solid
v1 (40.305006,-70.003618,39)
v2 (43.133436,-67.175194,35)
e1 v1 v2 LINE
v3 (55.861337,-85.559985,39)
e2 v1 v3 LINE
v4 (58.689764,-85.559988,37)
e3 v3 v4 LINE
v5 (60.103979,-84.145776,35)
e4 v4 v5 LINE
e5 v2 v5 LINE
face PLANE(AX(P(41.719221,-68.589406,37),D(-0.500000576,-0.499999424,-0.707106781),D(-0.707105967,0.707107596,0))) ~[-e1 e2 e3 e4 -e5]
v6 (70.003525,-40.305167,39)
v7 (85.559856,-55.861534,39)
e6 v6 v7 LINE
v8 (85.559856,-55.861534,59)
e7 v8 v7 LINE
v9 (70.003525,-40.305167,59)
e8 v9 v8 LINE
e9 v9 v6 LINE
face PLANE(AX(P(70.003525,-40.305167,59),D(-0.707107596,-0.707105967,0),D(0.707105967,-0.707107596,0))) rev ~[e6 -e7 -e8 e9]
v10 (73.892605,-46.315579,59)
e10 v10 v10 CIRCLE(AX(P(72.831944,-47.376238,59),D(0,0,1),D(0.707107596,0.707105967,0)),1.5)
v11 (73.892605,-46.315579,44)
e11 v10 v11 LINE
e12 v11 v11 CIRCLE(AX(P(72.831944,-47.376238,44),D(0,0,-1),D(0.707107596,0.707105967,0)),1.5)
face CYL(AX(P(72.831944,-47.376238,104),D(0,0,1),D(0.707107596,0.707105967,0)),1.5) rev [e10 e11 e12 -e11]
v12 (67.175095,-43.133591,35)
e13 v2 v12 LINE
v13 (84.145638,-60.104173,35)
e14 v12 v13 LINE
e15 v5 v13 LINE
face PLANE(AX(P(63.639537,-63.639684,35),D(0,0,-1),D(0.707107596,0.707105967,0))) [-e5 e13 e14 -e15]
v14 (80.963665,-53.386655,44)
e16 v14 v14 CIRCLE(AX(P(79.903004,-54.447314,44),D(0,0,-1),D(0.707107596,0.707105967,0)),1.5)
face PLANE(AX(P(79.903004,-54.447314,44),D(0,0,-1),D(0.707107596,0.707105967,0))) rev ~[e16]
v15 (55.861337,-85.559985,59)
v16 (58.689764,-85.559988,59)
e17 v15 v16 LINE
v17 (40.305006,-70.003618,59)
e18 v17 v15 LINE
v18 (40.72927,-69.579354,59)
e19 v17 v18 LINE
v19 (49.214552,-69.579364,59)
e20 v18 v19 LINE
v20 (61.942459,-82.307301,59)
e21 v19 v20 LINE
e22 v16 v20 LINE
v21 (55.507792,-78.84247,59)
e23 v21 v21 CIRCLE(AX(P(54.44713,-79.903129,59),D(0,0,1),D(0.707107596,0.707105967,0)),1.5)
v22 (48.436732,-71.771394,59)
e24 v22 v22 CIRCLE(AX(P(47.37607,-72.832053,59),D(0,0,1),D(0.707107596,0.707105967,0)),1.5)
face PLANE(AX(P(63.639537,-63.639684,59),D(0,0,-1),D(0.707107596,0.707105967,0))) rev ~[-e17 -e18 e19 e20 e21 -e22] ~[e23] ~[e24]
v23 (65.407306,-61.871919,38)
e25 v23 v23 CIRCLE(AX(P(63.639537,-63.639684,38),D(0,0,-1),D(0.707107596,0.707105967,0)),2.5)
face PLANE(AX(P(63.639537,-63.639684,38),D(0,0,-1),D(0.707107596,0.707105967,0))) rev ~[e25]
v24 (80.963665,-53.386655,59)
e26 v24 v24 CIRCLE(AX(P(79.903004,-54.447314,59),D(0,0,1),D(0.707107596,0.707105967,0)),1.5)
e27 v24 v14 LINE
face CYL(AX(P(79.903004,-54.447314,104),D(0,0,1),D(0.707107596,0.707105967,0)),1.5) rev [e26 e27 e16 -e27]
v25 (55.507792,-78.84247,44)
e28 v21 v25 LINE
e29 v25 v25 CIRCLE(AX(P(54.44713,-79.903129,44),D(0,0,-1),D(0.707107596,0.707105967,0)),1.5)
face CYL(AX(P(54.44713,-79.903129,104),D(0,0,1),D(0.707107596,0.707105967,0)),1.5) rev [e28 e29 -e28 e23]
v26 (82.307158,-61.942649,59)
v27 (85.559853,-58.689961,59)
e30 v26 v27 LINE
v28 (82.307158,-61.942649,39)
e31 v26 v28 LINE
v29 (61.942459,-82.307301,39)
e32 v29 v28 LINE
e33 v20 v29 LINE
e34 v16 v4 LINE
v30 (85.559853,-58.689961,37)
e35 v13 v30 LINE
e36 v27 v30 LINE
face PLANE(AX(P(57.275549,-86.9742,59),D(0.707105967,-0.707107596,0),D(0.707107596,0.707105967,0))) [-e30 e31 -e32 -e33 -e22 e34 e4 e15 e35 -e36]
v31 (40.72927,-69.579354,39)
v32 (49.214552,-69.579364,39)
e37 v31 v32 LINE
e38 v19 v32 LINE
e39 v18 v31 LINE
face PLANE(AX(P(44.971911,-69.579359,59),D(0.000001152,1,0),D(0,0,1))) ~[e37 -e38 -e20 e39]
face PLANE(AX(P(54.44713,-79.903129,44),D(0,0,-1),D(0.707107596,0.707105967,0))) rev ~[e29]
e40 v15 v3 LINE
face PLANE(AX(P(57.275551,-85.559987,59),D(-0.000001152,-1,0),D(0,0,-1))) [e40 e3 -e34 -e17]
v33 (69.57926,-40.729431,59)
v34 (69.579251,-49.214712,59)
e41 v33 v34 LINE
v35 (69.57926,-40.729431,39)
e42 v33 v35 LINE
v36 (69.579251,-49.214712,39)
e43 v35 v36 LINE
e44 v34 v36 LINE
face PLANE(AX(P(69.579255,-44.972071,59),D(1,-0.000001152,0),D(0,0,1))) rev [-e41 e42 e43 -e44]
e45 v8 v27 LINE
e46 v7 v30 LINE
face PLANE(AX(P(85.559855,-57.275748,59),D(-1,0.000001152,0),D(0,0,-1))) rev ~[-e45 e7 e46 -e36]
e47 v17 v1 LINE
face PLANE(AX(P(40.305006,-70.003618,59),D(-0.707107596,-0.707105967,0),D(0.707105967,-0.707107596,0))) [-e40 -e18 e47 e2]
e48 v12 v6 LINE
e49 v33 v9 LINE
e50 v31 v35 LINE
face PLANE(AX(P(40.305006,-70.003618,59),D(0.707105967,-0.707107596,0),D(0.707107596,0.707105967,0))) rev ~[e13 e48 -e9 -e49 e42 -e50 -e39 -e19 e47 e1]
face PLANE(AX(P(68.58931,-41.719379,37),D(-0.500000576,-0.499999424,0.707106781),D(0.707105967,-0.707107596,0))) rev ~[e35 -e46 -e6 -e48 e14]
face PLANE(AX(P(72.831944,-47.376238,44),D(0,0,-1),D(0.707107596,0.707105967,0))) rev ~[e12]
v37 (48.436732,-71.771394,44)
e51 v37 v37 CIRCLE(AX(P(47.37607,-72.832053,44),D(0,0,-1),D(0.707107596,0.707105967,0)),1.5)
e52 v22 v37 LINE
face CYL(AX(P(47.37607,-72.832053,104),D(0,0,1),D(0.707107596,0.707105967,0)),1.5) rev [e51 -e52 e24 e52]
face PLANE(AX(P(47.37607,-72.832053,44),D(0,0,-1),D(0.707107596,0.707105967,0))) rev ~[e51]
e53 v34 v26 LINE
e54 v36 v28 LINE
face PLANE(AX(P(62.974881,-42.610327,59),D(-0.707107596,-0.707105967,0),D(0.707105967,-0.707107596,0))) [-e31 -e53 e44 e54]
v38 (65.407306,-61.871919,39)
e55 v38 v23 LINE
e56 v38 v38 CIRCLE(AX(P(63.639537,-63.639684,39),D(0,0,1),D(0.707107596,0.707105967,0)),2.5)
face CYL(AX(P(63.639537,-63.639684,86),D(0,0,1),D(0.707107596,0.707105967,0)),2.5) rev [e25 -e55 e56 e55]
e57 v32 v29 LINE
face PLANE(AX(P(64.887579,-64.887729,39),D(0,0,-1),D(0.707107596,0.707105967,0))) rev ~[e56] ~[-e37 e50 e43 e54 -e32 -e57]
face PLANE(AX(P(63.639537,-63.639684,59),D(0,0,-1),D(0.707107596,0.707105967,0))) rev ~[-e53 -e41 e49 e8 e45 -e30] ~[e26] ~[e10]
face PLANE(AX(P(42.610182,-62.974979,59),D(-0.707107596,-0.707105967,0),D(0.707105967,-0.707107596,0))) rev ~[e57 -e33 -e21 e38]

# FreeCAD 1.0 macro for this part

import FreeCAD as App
import Part
import Sketcher

V = App.Vector
Q = App.Units.Quantity


def edges_at(feature, points):
    """Names of the edges that pass closest to the given points."""
    edges = feature.Shape.Edges
    near = lambda p: min(range(len(edges)), key=lambda i: edges[i].distToShape(Part.Vertex(*p))[0])
    return sorted({f"Edge{near(p) + 1}" for p in points})

doc = App.newDocument("Part")
params = doc.addObject("Spreadsheet::Sheet", "Params")
for row, (alias, value) in enumerate([
    ("sketch1_diameter", "3 mm"),
    ("pad1_length", "60 mm"),
    ("sketch2_diameter", "3 mm"),
    ("pad2_length", "60 mm"),
    ("sketch3_diameter", "3 mm"),
    ("pad3_length", "60 mm"),
    ("sketch4_diameter", "3 mm"),
    ("pad4_length", "60 mm"),
    ("sketch5_diameter", "5 mm"),
    ("pad5_length", "48 mm"),
    ("sketch6_width", "28.8 mm"),
    ("sketch6_height", "34.21 mm"),
    ("pad6_length", "20 mm"),
    ("sketch7_width", "42 mm"),
    ("sketch7_height", "24 mm"),
    ("pad7_length", "24 mm"),
    ("chamfer_size", "6 mm"),
    ("chamfer2_size", "4 mm"),
    ("chamfer3_size", "2 mm"),
], start=1):
    params.set(f"A{row}", alias)
    params.set(f"B{row}", "=" + value)
    params.setAlias(f"B{row}", alias)

body = doc.addObject("PartDesign::Body", "Body")

# Sketch on XY plane
sketch1 = doc.addObject("Sketcher::SketchObject", "Sketch")
body.addObject(sketch1)
sketch1.AttachmentSupport = (doc.XY_Plane, [""])
sketch1.MapMode = "FlatFace"
sketch1.AttachmentOffset = App.Placement(V(0, 0, -57), App.Rotation())
sketch1.addGeometry(Part.Circle(V(18, 85, 0), V(0, 0, 1), 1.5), False)
sketch1.addConstraint([
    Sketcher.Constraint("Diameter", 0, Q("3 mm")),
    Sketcher.Constraint("DistanceX", -1, 1, 0, 3, Q("18 mm")),
    Sketcher.Constraint("DistanceY", -1, 1, 0, 3, Q("85 mm")),
])
sketch1.setExpression("Constraints[0]", "Params.sketch1_diameter")
pad1 = doc.addObject("PartDesign::Pad", "Pad")
body.addObject(pad1)
pad1.Profile = sketch1
pad1.setExpression("Length", "Params.pad1_length")
body2 = doc.addObject("PartDesign::Body", "Body001")

# Sketch on XY plane
sketch2 = doc.addObject("Sketcher::SketchObject", "Sketch001")
body2.addObject(sketch2)
sketch2.AttachmentSupport = (doc.getObject("XY_Plane001"), [""])
sketch2.MapMode = "FlatFace"
sketch2.AttachmentOffset = App.Placement(V(0, 0, -57), App.Rotation())
sketch2.addGeometry(Part.Circle(V(-18, 85, 0), V(0, 0, 1), 1.5), False)
sketch2.addConstraint([
    Sketcher.Constraint("Diameter", 0, Q("3 mm")),
    Sketcher.Constraint("DistanceX", 0, 3, -1, 1, Q("18 mm")),
    Sketcher.Constraint("DistanceY", -1, 1, 0, 3, Q("85 mm")),
])
sketch2.setExpression("Constraints[0]", "Params.sketch2_diameter")
pad2 = doc.addObject("PartDesign::Pad", "Pad001")
body2.addObject(pad2)
pad2.Profile = sketch2
pad2.setExpression("Length", "Params.pad2_length")
body3 = doc.addObject("PartDesign::Body", "Body002")

# Sketch on XY plane
sketch3 = doc.addObject("Sketcher::SketchObject", "Sketch002")
body3.addObject(sketch3)
sketch3.AttachmentSupport = (doc.getObject("XY_Plane002"), [""])
sketch3.MapMode = "FlatFace"
sketch3.AttachmentOffset = App.Placement(V(0, 0, -57), App.Rotation())
sketch3.addGeometry(Part.Circle(V(-18, 95, 0), V(0, 0, 1), 1.5), False)
sketch3.addConstraint([
    Sketcher.Constraint("Diameter", 0, Q("3 mm")),
    Sketcher.Constraint("DistanceX", 0, 3, -1, 1, Q("18 mm")),
    Sketcher.Constraint("DistanceY", -1, 1, 0, 3, Q("95 mm")),
])
sketch3.setExpression("Constraints[0]", "Params.sketch3_diameter")
pad3 = doc.addObject("PartDesign::Pad", "Pad002")
body3.addObject(pad3)
pad3.Profile = sketch3
pad3.setExpression("Length", "Params.pad3_length")
body4 = doc.addObject("PartDesign::Body", "Body003")
body4.AllowCompound = True

# Sketch on XY plane
sketch4 = doc.addObject("Sketcher::SketchObject", "Sketch003")
body4.addObject(sketch4)
sketch4.AttachmentSupport = (doc.getObject("XY_Plane003"), [""])
sketch4.MapMode = "FlatFace"
sketch4.AttachmentOffset = App.Placement(V(0, 0, -57), App.Rotation())
sketch4.addGeometry(Part.Circle(V(18, 95, 0), V(0, 0, 1), 1.5), False)
sketch4.addConstraint([
    Sketcher.Constraint("Diameter", 0, Q("3 mm")),
    Sketcher.Constraint("DistanceX", -1, 1, 0, 3, Q("18 mm")),
    Sketcher.Constraint("DistanceY", -1, 1, 0, 3, Q("95 mm")),
])
sketch4.setExpression("Constraints[0]", "Params.sketch4_diameter")
pad4 = doc.addObject("PartDesign::Pad", "Pad003")
body4.addObject(pad4)
pad4.Profile = sketch4
pad4.setExpression("Length", "Params.pad4_length")
doc.recompute()

boolean = doc.addObject("PartDesign::Boolean", "Boolean")
body4.addObject(boolean)
boolean.Type = "Fuse"
boolean.addObjects([body])
doc.recompute()

boolean2 = doc.addObject("PartDesign::Boolean", "Boolean001")
body4.addObject(boolean2)
boolean2.Type = "Fuse"
boolean2.addObjects([body2])
doc.recompute()

boolean3 = doc.addObject("PartDesign::Boolean", "Boolean002")
body4.addObject(boolean3)
boolean3.Type = "Fuse"
boolean3.addObjects([body3])
body5 = doc.addObject("PartDesign::Body", "Body004")
body5.AllowCompound = True
doc.recompute()

body4.Placement = App.Placement(V(0, 0, -16), App.Rotation(V(0, 0, 1), 0))
boolean4 = doc.addObject("PartDesign::Boolean", "Boolean003")
body5.addObject(boolean4)
boolean4.Type = "Fuse"
boolean4.addObjects([body4])
body6 = doc.addObject("PartDesign::Body", "Body005")

# Sketch on XY plane
sketch5 = doc.addObject("Sketcher::SketchObject", "Sketch004")
body6.addObject(sketch5)
sketch5.AttachmentSupport = (doc.getObject("XY_Plane005"), [""])
sketch5.MapMode = "FlatFace"
sketch5.AttachmentOffset = App.Placement(V(0, 0, -55), App.Rotation())
sketch5.addGeometry(Part.Circle(V(0, 90, 0), V(0, 0, 1), 2.5), False)
sketch5.addConstraint([
    Sketcher.Constraint("PointOnObject", 0, 3, -2),
    Sketcher.Constraint("Diameter", 0, Q("5 mm")),
    Sketcher.Constraint("DistanceY", -1, 1, 0, 3, Q("90 mm")),
])
sketch5.setExpression("Constraints[1]", "Params.sketch5_diameter")
pad5 = doc.addObject("PartDesign::Pad", "Pad004")
body6.addObject(pad5)
pad5.Profile = sketch5
pad5.setExpression("Length", "Params.pad5_length")
body7 = doc.addObject("PartDesign::Body", "Body006")

# Sketch on XY plane
sketch6 = doc.addObject("Sketcher::SketchObject", "Sketch005")
body7.addObject(sketch6)
sketch6.AttachmentSupport = (doc.getObject("XY_Plane006"), [""])
sketch6.MapMode = "FlatFace"
sketch6.AttachmentOffset = App.Placement(V(0, 0, 34), App.Rotation())
sketch6.addGeometry([
    Part.LineSegment(V(-14, 19, 0), V(-14, -15, 0)),
    Part.LineSegment(V(-14, -15, 0), V(14, -15, 0)),
    Part.LineSegment(V(14, -15, 0), V(14, 19, 0)),
    Part.LineSegment(V(14, 19, 0), V(-14, 19, 0)),
], False)
sketch6.addConstraint([
    Sketcher.Constraint("Coincident", 0, 2, 1, 1),
    Sketcher.Constraint("Coincident", 1, 2, 2, 1),
    Sketcher.Constraint("Coincident", 2, 2, 3, 1),
    Sketcher.Constraint("Coincident", 3, 2, 0, 1),
    Sketcher.Constraint("Vertical", 0),
    Sketcher.Constraint("Horizontal", 1),
    Sketcher.Constraint("Vertical", 2),
    Sketcher.Constraint("Horizontal", 3),
    Sketcher.Constraint("DistanceX", 1, 1, 1, 2, Q("28.8 mm")),
    Sketcher.Constraint("DistanceY", 0, 2, 0, 1, Q("34.21 mm")),
    Sketcher.Constraint("DistanceX", 0, 2, -1, 1, Q("14.4 mm")),
    Sketcher.Constraint("DistanceY", 0, 2, -1, 1, Q("15.34 mm")),
])
sketch6.setExpression("Constraints[8]", "Params.sketch6_width")
sketch6.setExpression("Constraints[9]", "Params.sketch6_height")
pad6 = doc.addObject("PartDesign::Pad", "Pad005")
body7.addObject(pad6)
pad6.Profile = sketch6
pad6.setExpression("Length", "Params.pad6_length")
body8 = doc.addObject("PartDesign::Body", "Body007")
doc.recompute()

body7.Placement = App.Placement(V(0, 90, -83), App.Rotation(V(0, 0, 1), 0))
boolean5 = doc.addObject("PartDesign::Boolean", "Boolean004")
body8.addObject(boolean5)
boolean5.Type = "Fuse"
boolean5.addObjects([body7])
body9 = doc.addObject("PartDesign::Body", "Body008")

# Sketch on XY plane
sketch7 = doc.addObject("Sketcher::SketchObject", "Sketch006")
body9.addObject(sketch7)
sketch7.AttachmentSupport = (doc.getObject("XY_Plane008"), [""])
sketch7.MapMode = "FlatFace"
sketch7.AttachmentOffset = App.Placement(V(0, 0, -49), App.Rotation())
sketch7.addGeometry([
    Part.LineSegment(V(-21, 102, 0), V(-21, 78, 0)),
    Part.LineSegment(V(-21, 78, 0), V(21, 78, 0)),
    Part.LineSegment(V(21, 78, 0), V(21, 102, 0)),
    Part.LineSegment(V(21, 102, 0), V(-21, 102, 0)),
], False)
sketch7.addConstraint([
    Sketcher.Constraint("Coincident", 0, 2, 1, 1),
    Sketcher.Constraint("Coincident", 1, 2, 2, 1),
    Sketcher.Constraint("Coincident", 2, 2, 3, 1),
    Sketcher.Constraint("Coincident", 3, 2, 0, 1),
    Sketcher.Constraint("Vertical", 0),
    Sketcher.Constraint("Horizontal", 1),
    Sketcher.Constraint("Vertical", 2),
    Sketcher.Constraint("Horizontal", 3),
    Sketcher.Constraint("DistanceX", 1, 1, 1, 2, Q("42 mm")),
    Sketcher.Constraint("DistanceY", 0, 2, 0, 1, Q("24 mm")),
    Sketcher.Constraint("DistanceX", 0, 2, -1, 1, Q("21 mm")),
    Sketcher.Constraint("DistanceY", -1, 1, 0, 2, Q("78 mm")),
])
sketch7.setExpression("Constraints[8]", "Params.sketch7_width")
sketch7.setExpression("Constraints[9]", "Params.sketch7_height")
pad7 = doc.addObject("PartDesign::Pad", "Pad006")
body9.addObject(pad7)
pad7.Profile = sketch7
pad7.setExpression("Length", "Params.pad7_length")
doc.recompute()

boolean6 = doc.addObject("PartDesign::Boolean", "Boolean005")
body9.addObject(boolean6)
boolean6.Type = "Cut"
boolean6.addObjects([body8])
body10 = doc.addObject("PartDesign::Body", "Body009")
doc.recompute()

body9.Placement = App.Placement(V(0, 0, 21), App.Rotation(V(0, 0, 1), 0))
boolean7 = doc.addObject("PartDesign::Boolean", "Boolean006")
body10.addObject(boolean7)
boolean7.Type = "Fuse"
boolean7.addObjects([body9])
doc.recompute()

boolean8 = doc.addObject("PartDesign::Boolean", "Boolean007")
body10.addObject(boolean8)
boolean8.Type = "Cut"
boolean8.addObjects([body6])
doc.recompute()

chamfer = doc.addObject("PartDesign::Chamfer", "Chamfer")
body10.addObject(chamfer)
chamfer.Base = (boolean8, edges_at(boolean8, [(-14.4, 78, -18), (14.4, 78, -18)]))
chamfer.setExpression("Size", "Params.chamfer_size")
doc.recompute()

boolean9 = doc.addObject("PartDesign::Boolean", "Boolean008")
body10.addObject(boolean9)
boolean9.Type = "Cut"
boolean9.addObjects([body5])
doc.recompute()

chamfer2 = doc.addObject("PartDesign::Chamfer", "Chamfer001")
body10.addObject(chamfer2)
chamfer2.Base = (boolean9, edges_at(boolean9, [(-21, 90, -4), (21, 90, -4)]))
chamfer2.setExpression("Size", "Params.chamfer2_size")
doc.recompute()

chamfer3 = doc.addObject("PartDesign::Chamfer", "Chamfer002")
body10.addObject(chamfer3)
chamfer3.Base = (chamfer2, edges_at(chamfer2, [(-21, 102, -18), (21, 102, -18)]))
chamfer3.setExpression("Size", "Params.chamfer3_size")
body11 = doc.addObject("PartDesign::Body", "Body010")
doc.recompute()

body10.Placement = App.Placement(V(0, 0, 0), App.Rotation(V(1, 0, 0), 180))
boolean10 = doc.addObject("PartDesign::Boolean", "Boolean009")
body11.addObject(boolean10)
boolean10.Type = "Fuse"
boolean10.addObjects([body10])
body12 = doc.addObject("PartDesign::Body", "Body011")
doc.recompute()

body11.Placement = App.Placement(V(0, 0, 31), App.Rotation(V(0, 0, 1), 44.999934))
boolean11 = doc.addObject("PartDesign::Boolean", "Boolean010")
body12.addObject(boolean11)
boolean11.Type = "Fuse"
boolean11.addObjects([body11])

doc.recompute()
